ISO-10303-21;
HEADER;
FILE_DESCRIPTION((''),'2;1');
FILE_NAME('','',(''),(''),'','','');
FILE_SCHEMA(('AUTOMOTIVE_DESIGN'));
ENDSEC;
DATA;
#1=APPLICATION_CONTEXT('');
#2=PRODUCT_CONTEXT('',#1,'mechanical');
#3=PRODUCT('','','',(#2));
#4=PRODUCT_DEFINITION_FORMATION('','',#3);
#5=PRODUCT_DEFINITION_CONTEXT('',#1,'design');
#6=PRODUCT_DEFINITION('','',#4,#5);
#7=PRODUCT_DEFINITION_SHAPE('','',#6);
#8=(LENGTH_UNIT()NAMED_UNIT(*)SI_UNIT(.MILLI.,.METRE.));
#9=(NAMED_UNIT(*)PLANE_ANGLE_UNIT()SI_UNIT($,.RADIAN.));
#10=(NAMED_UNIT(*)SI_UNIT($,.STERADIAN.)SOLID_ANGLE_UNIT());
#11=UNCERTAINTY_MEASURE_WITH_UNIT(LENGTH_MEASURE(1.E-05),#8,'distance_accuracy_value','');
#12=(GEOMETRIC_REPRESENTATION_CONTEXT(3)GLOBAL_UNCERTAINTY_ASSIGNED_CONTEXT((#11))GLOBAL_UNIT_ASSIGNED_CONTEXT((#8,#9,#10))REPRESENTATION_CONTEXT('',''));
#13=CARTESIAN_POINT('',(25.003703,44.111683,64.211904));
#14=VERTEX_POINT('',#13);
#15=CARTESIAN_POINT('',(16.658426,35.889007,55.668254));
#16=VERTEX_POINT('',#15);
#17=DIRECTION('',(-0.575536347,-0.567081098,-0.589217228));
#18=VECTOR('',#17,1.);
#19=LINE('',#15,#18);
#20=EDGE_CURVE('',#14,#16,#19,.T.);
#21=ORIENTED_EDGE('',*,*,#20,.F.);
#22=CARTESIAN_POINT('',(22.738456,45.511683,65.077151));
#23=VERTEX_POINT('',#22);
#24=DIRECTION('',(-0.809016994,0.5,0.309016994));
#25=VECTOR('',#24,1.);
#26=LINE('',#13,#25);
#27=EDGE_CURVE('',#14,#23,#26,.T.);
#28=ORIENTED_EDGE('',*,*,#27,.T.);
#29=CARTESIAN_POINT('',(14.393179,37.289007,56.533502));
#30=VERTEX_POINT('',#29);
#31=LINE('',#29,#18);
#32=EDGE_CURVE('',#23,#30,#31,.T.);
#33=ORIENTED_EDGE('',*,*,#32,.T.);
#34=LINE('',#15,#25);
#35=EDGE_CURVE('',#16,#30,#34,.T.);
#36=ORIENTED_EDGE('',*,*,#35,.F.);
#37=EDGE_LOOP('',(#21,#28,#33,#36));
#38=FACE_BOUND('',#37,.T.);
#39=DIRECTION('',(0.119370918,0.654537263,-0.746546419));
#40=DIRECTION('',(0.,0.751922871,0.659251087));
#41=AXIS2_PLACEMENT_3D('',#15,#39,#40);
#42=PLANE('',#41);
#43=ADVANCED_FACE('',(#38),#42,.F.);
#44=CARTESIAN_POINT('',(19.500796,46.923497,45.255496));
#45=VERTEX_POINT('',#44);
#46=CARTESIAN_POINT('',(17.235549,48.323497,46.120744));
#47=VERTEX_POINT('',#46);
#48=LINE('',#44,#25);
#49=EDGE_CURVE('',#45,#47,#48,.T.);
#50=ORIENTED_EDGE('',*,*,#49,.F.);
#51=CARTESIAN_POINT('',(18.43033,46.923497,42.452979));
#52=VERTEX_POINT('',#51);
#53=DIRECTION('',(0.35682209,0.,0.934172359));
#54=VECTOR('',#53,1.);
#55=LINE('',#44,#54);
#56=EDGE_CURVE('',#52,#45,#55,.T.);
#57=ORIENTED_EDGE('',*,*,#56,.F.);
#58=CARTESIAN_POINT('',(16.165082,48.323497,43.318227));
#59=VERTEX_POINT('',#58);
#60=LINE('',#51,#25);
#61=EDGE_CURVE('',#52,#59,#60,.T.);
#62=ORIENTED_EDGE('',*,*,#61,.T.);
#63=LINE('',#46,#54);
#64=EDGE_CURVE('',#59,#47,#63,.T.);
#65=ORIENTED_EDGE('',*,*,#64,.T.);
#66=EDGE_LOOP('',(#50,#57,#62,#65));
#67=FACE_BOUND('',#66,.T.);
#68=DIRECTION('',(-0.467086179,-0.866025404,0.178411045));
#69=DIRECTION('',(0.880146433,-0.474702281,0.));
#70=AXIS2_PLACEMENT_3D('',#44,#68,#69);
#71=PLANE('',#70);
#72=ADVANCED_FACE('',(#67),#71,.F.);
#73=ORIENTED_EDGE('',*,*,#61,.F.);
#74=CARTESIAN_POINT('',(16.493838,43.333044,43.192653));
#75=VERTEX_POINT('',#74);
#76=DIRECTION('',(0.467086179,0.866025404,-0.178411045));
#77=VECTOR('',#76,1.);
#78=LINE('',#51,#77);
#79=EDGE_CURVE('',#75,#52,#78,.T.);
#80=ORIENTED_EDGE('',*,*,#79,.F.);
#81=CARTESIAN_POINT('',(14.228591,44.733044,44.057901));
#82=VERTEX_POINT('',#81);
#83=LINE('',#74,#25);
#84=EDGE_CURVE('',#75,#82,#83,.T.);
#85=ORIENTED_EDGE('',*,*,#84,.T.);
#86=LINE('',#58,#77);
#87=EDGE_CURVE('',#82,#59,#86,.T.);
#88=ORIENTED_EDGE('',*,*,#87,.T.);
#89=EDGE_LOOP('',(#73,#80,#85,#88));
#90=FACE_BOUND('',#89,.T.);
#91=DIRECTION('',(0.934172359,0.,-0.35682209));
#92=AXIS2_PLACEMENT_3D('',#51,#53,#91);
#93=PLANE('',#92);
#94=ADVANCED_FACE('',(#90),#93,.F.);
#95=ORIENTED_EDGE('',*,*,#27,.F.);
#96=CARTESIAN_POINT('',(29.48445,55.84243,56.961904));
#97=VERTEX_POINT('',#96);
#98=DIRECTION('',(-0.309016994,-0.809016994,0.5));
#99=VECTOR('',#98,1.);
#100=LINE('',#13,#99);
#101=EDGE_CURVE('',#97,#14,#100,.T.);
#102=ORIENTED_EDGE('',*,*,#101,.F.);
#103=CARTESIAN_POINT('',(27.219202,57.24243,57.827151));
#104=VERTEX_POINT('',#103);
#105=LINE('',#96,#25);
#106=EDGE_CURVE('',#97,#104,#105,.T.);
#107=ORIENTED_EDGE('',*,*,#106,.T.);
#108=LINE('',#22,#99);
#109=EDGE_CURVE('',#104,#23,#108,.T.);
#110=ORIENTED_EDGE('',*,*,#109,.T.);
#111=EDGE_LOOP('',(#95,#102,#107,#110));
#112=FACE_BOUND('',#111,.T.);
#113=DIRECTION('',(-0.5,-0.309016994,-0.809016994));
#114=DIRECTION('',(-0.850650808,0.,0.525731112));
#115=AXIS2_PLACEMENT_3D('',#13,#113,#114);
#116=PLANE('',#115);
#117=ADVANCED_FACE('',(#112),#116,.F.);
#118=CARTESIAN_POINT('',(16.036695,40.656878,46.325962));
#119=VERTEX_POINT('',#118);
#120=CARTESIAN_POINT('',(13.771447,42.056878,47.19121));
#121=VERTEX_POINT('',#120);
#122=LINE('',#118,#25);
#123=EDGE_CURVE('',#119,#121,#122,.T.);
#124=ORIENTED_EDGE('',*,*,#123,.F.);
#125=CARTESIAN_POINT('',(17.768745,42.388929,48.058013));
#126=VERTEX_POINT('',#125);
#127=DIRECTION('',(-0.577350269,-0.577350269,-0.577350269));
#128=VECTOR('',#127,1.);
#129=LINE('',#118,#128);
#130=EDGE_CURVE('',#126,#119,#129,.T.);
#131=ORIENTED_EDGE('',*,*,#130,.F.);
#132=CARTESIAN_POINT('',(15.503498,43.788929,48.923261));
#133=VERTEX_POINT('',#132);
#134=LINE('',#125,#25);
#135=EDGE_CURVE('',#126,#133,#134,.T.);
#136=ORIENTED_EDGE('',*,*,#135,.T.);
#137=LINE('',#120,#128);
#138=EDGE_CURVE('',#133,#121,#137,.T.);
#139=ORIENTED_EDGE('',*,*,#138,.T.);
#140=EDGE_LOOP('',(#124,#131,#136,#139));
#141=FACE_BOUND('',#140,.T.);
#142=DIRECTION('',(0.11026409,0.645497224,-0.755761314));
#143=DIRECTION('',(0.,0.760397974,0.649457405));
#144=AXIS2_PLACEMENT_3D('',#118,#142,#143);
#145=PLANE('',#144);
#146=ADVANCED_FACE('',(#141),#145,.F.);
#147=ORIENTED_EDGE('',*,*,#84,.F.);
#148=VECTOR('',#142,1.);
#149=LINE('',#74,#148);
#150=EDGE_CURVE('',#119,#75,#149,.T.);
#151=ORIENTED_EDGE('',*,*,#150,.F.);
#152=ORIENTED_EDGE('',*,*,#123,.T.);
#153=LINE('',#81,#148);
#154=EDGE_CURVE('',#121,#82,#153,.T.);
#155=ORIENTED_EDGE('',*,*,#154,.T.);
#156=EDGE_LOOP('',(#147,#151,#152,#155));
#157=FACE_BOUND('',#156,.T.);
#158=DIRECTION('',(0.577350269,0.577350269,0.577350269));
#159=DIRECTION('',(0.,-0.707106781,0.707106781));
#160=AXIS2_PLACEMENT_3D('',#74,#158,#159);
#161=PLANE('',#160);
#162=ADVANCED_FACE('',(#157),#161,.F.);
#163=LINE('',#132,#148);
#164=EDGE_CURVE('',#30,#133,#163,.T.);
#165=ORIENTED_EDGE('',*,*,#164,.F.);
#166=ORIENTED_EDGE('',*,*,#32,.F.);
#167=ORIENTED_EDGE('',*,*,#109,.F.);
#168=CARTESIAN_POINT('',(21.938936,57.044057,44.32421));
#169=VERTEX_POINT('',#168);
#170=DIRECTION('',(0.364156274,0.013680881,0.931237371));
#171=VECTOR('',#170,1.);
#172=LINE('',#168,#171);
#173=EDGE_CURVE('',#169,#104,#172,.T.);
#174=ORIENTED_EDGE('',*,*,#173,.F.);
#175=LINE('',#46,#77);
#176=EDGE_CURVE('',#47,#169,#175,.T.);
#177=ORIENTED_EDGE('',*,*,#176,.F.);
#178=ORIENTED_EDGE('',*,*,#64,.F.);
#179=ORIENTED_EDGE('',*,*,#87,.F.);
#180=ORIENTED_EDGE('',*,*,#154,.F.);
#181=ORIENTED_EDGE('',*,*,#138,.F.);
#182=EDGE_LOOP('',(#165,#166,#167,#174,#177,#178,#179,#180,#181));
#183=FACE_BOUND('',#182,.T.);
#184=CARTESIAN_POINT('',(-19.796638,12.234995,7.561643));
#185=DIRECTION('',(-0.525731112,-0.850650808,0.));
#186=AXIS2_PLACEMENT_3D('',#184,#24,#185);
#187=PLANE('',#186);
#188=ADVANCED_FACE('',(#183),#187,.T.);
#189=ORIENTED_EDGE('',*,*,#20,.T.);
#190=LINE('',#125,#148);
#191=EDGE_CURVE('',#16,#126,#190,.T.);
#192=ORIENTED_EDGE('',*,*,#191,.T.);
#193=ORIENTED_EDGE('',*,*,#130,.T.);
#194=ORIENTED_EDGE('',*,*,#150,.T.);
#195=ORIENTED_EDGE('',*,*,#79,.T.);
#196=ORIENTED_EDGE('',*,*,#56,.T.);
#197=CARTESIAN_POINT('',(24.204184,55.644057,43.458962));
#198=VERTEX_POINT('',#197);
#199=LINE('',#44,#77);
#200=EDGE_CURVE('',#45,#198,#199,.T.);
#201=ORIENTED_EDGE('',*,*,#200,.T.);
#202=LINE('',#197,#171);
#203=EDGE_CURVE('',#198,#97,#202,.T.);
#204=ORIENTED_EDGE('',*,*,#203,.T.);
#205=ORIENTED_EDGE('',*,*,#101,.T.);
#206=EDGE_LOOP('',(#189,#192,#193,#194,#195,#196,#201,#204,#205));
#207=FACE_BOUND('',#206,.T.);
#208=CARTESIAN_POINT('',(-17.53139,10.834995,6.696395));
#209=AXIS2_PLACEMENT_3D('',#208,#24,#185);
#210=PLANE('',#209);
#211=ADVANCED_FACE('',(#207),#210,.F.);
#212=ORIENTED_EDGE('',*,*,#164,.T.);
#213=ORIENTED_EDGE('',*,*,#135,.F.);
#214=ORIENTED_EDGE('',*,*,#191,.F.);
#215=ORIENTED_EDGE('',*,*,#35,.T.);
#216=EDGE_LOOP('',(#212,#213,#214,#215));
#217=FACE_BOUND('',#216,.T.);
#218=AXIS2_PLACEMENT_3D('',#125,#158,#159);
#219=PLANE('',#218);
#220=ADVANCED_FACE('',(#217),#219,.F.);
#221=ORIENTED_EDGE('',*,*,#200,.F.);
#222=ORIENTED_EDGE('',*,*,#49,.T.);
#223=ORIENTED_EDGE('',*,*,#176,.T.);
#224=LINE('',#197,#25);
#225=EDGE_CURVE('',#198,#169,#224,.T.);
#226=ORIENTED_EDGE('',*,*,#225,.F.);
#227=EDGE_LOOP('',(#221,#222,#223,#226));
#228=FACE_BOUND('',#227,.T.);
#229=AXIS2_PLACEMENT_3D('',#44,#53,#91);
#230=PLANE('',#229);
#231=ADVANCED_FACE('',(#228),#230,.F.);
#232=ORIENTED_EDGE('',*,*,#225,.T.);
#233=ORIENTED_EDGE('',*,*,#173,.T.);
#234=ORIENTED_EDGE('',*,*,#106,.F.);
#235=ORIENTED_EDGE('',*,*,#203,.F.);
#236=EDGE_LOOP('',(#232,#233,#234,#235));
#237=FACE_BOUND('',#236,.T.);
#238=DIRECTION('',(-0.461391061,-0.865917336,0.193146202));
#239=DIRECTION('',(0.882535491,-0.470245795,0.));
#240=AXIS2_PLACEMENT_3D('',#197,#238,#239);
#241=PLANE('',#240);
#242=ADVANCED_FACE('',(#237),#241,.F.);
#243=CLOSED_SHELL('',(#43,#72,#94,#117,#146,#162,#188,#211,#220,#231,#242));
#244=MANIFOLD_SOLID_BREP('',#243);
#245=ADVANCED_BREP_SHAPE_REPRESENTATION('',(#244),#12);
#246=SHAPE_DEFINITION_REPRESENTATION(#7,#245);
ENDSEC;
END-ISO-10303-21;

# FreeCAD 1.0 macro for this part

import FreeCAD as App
import Part
import Sketcher
Q = App.Units.Quantity


def add_polygon(sketch, points):
    """Adds a closed chain of lines whose ends are joined by coincident constraints."""
    first, n = sketch.GeometryCount, len(points)
    for a, b in zip(points, points[1:] + points[:1]):
        sketch.addGeometry(Part.LineSegment(App.Vector(*a, 0), App.Vector(*b, 0)), False)
    for i in range(n):
        sketch.addConstraint(Sketcher.Constraint("Coincident", first + i, 2, first + (i + 1) % n, 1))

doc = App.newDocument("Part")
body = doc.addObject("PartDesign::Body", "Body")

sketch1 = doc.addObject("Sketcher::SketchObject", "Sketch")
body.addObject(sketch1)
sketch1.Placement = App.Placement(App.Vector(-19.796638, 12.234995, 7.561643), App.Rotation(App.Vector(-0.262865556, 0.162459848, -0.951056516), App.Vector(0.525731112, 0.850650808, 0), App.Vector(0.809016994, -0.5, -0.309016994), "ZXY"))
add_polygon(sketch1, [(-37.596697, 49.604908), (-40.543438, 50.167686), (-38.65445, 60.058554), (-52.852283, 63.0033), (-60.475385, 50.668864), (-51.492059, 39.286866), (-43.490179, 45.399759), (-41.668993, 43.015795), (-38.374436, 45.532613)])
sketch1.addConstraint(Sketcher.Constraint("Perpendicular", 0, 1))
sketch1.addConstraint(Sketcher.Constraint("Perpendicular", 5, 6))
sketch1.addConstraint(Sketcher.Constraint("Perpendicular", 6, 7))
sketch1.addConstraint(Sketcher.Constraint("Parallel", 1, 8))
sketch1.addConstraint(Sketcher.Constraint("Equal", 2, 3))
sketch1.addConstraint(Sketcher.Constraint("Equal", 3, 4))
sketch1.addConstraint(Sketcher.Constraint("Equal", 1, 5))
sketch1.addConstraint(Sketcher.Constraint("Equal", 0, 6))
sketch1.addConstraint(Sketcher.Constraint("Equal", 7, 8))
sketch1.addConstraint(Sketcher.Constraint("Distance", 0, Q("3 mm")))
sketch1.addConstraint(Sketcher.Constraint("Distance", 2, Q("14.5 mm")))
sketch1.addConstraint(Sketcher.Constraint("DistanceX", 0, 2, 7, 2, Q("2.169002 mm")))
sketch1.addConstraint(Sketcher.Constraint("Distance", 7, Q("4.145898 mm")))
sketch1.addConstraint(Sketcher.Constraint("DistanceY", -1, 1, 2, 2, Q("63.0033 mm")))
sketch1.addConstraint(Sketcher.Constraint("DistanceX", 3, 2, 2, 2, Q("7.623101 mm")))
sketch1.addConstraint(Sketcher.Constraint("DistanceX", 1, 2, -1, 1, Q("38.65445 mm")))
sketch1.addConstraint(Sketcher.Constraint("DistanceX", 4, 2, -1, 1, Q("51.492059 mm")))
sketch1.addConstraint(Sketcher.Constraint("DistanceX", 5, 2, -1, 1, Q("43.490179 mm")))
pad1 = doc.addObject("PartDesign::Pad", "Pad")
body.addObject(pad1)
pad1.Profile = sketch1
pad1.Length = 2.8

doc.recompute()
